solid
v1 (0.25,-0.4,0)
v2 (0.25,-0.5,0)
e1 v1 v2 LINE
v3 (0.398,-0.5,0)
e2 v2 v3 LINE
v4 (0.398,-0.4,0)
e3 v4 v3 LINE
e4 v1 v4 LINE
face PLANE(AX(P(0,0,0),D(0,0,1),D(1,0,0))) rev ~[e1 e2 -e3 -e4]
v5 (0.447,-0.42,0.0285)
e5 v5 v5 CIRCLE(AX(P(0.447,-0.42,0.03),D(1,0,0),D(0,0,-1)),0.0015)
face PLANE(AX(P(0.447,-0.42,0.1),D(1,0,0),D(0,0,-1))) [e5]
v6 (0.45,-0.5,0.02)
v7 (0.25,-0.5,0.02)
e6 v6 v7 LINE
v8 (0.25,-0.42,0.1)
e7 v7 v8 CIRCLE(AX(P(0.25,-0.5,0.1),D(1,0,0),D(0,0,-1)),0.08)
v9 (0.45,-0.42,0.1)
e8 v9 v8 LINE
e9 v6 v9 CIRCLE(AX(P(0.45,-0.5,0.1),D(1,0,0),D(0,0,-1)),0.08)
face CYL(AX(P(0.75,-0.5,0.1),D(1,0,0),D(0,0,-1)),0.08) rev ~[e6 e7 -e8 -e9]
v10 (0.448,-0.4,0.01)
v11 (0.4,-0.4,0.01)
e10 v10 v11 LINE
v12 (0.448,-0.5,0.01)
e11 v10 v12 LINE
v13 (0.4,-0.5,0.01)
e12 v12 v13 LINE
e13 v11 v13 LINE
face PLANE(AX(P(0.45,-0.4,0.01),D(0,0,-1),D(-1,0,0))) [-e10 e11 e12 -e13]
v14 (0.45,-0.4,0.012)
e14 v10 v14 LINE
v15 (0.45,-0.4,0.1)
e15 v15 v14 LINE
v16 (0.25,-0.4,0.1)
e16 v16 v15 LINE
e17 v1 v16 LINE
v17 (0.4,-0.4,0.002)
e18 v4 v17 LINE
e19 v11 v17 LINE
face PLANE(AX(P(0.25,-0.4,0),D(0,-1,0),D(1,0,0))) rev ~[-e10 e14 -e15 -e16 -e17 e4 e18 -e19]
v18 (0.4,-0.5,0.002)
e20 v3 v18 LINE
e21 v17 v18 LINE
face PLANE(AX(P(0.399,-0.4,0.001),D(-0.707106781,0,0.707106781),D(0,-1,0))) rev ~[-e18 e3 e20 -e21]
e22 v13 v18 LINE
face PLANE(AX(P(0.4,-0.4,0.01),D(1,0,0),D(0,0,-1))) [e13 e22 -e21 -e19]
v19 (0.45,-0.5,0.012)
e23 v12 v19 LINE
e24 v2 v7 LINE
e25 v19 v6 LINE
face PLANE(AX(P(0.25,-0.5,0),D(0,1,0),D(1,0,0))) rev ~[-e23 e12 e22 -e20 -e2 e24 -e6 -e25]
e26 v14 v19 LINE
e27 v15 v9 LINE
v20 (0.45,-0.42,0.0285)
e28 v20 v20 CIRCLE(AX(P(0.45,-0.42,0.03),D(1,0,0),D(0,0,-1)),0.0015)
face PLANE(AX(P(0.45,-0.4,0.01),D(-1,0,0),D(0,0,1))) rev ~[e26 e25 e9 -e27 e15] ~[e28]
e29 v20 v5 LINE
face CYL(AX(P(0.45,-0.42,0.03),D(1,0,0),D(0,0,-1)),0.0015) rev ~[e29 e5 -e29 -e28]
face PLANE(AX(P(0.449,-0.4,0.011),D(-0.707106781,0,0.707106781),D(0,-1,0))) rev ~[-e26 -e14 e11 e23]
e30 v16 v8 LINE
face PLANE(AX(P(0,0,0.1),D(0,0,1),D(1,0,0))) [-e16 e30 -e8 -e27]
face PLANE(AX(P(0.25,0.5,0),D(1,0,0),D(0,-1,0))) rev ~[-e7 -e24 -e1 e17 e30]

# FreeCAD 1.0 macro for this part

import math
import FreeCAD as App
import Part
import Sketcher
from FreeCAD import Vector


def edges_at(feature, points):
    """Names of the edges that pass closest to the given points."""
    edges = feature.Shape.Edges
    near = lambda p: min(range(len(edges)), key=lambda i: edges[i].distToShape(Part.Vertex(*p))[0])
    return sorted({f"Edge{near(p) + 1}" for p in points})

doc = App.newDocument("Part")
body = doc.addObject("PartDesign::Body", "Body")

sketch1 = body.newObject("Sketcher::SketchObject", "Sketch")
sketch1.AttachmentSupport = (doc.getObject("XY_Plane"), [""])
sketch1.MapMode = "FlatFace"
sketch1.addGeometry([
    Part.LineSegment(Vector(0.2, 0.5, 0), Vector(0.2, -0.5, 0)),
    Part.LineSegment(Vector(0.2, -0.5, 0), Vector(0.8, -0.5, 0)),
    Part.LineSegment(Vector(0.8, -0.5, 0), Vector(0.8, 0.5, 0)),
    Part.LineSegment(Vector(0.8, 0.5, 0), Vector(0.2, 0.5, 0)),
], False)
sketch1.addConstraint([
    Sketcher.Constraint("Coincident", 0, 2, 1, 1),
    Sketcher.Constraint("Coincident", 1, 2, 2, 1),
    Sketcher.Constraint("Coincident", 2, 2, 3, 1),
    Sketcher.Constraint("Coincident", 3, 2, 0, 1),
    Sketcher.Constraint("Vertical", 0),
    Sketcher.Constraint("Horizontal", 1),
    Sketcher.Constraint("Vertical", 2),
    Sketcher.Constraint("Horizontal", 3),
    Sketcher.Constraint("DistanceY", 0, 2, 0, 1, 1.0),
    Sketcher.Constraint("DistanceX", 1, 1, 1, 2, 0.5),
    Sketcher.Constraint("DistanceY", 0, 2, -1, 1, 0.5),
    Sketcher.Constraint("DistanceX", -1, 1, 0, 2, 0.25),
])
pad1 = body.newObject("PartDesign::Pad", "Pad")
pad1.Profile = sketch1
pad1.Length = 0.1

sketch2 = body.newObject("Sketcher::SketchObject", "Sketch001")
sketch2.AttachmentSupport = (doc.getObject("YZ_Plane"), [""])
sketch2.MapMode = "FlatFace"
sketch2.AttachmentOffset = App.Placement(Vector(0, 0, 0.75), App.Rotation())
sketch2.addGeometry([
    Part.LineSegment(Vector(-0.5, 0.1, 0), Vector(-0.5, 0.02, 0)),
    Part.ArcOfCircle(Part.Circle(Vector(-0.5, 0.1, 0), Vector(0, 0, 1), 0.08), math.radians(-90), math.radians(0)),
    Part.LineSegment(Vector(-0.42, 0.1, 0), Vector(-0.5, 0.1, 0)),
    Part.LineSegment(Vector(0.5, 0.1, 0), Vector(0.42, 0.1, 0)),
    Part.ArcOfCircle(Part.Circle(Vector(0.5, 0.1, 0), Vector(0, 0, 1), 0.08), math.radians(180), math.radians(270)),
    Part.LineSegment(Vector(0.5, 0.02, 0), Vector(0.5, 0.1, 0)),
], False)
sketch2.addConstraint([
    Sketcher.Constraint("Coincident", 0, 2, 1, 1),
    Sketcher.Constraint("Coincident", 1, 2, 2, 1),
    Sketcher.Constraint("Coincident", 2, 2, 0, 1),
    Sketcher.Constraint("Coincident", 3, 2, 4, 1),
    Sketcher.Constraint("Coincident", 4, 2, 5, 1),
    Sketcher.Constraint("Coincident", 5, 2, 3, 1),
    Sketcher.Constraint("Vertical", 0),
    Sketcher.Constraint("Horizontal", 2),
    Sketcher.Constraint("Horizontal", 3),
    Sketcher.Constraint("Vertical", 5),
    Sketcher.Constraint("Coincident", 2, 2, 1, 3),
    Sketcher.Constraint("Coincident", 5, 2, 4, 3),
    Sketcher.Constraint("Equal", 1, 4),
    Sketcher.Constraint("Symmetric", 1, 3, 4, 3, -2),
    Sketcher.Constraint("DistanceX", 1, 2, -1, 1, 0.42),
    Sketcher.Constraint("Radius", 1, 0.08),
    Sketcher.Constraint("DistanceY", -1, 1, 1, 3, 0.1),
])
pocket1 = body.newObject("PartDesign::Pocket", "Pocket")
pocket1.Profile = sketch2
pocket1.Length = 0.5

sketch3 = body.newObject("Sketcher::SketchObject", "Sketch002")
sketch3.AttachmentSupport = (doc.getObject("XZ_Plane"), [""])
sketch3.MapMode = "FlatFace"
sketch3.AttachmentOffset = App.Placement(Vector(0, 0, 0.4), App.Rotation())
sketch3.addGeometry([
    Part.LineSegment(Vector(0.25, 0.1, 0), Vector(0.25, 0, 0)),
    Part.LineSegment(Vector(0.25, 0, 0), Vector(0.75, 0, 0)),
    Part.LineSegment(Vector(0.75, 0, 0), Vector(0.75, 0.1, 0)),
    Part.LineSegment(Vector(0.75, 0.1, 0), Vector(0.25, 0.1, 0)),
], False)
sketch3.addConstraint([
    Sketcher.Constraint("Coincident", 0, 2, 1, 1),
    Sketcher.Constraint("Coincident", 1, 2, 2, 1),
    Sketcher.Constraint("Coincident", 2, 2, 3, 1),
    Sketcher.Constraint("Coincident", 3, 2, 0, 1),
    Sketcher.Constraint("Vertical", 0),
    Sketcher.Constraint("Horizontal", 1),
    Sketcher.Constraint("Vertical", 2),
    Sketcher.Constraint("Horizontal", 3),
    Sketcher.Constraint("PointOnObject", 0, 2, -1),
    Sketcher.Constraint("DistanceX", 1, 1, 1, 2, 0.5),
    Sketcher.Constraint("DistanceY", 0, 2, 0, 1, 0.1),
    Sketcher.Constraint("DistanceX", -1, 1, 0, 2, 0.25),
])
pocket2 = body.newObject("PartDesign::Pocket", "Pocket001")
pocket2.Profile = sketch3
pocket2.Length = 10

sketch4 = body.newObject("Sketcher::SketchObject", "Sketch003")
sketch4.AttachmentSupport = (doc.getObject("XZ_Plane"), [""])
sketch4.MapMode = "FlatFace"
sketch4.AttachmentOffset = App.Placement(Vector(0, 0, 0.4), App.Rotation())
sketch4.addGeometry([
    Part.LineSegment(Vector(0.75, 0.1, 0), Vector(0.75, 0, 0)),
    Part.LineSegment(Vector(0.75, 0, 0), Vector(0.4, 0, 0)),
    Part.LineSegment(Vector(0.4, 0, 0), Vector(0.4, 0.01, 0)),
    Part.LineSegment(Vector(0.4, 0.01, 0), Vector(0.45, 0.01, 0)),
    Part.LineSegment(Vector(0.45, 0.01, 0), Vector(0.45, 0.1, 0)),
    Part.LineSegment(Vector(0.45, 0.1, 0), Vector(0.75, 0.1, 0)),
], False)
sketch4.addConstraint([
    Sketcher.Constraint("Coincident", 0, 2, 1, 1),
    Sketcher.Constraint("Coincident", 1, 2, 2, 1),
    Sketcher.Constraint("Coincident", 2, 2, 3, 1),
    Sketcher.Constraint("Coincident", 3, 2, 4, 1),
    Sketcher.Constraint("Coincident", 4, 2, 5, 1),
    Sketcher.Constraint("Coincident", 5, 2, 0, 1),
    Sketcher.Constraint("Vertical", 0),
    Sketcher.Constraint("Horizontal", 1),
    Sketcher.Constraint("Vertical", 2),
    Sketcher.Constraint("Horizontal", 3),
    Sketcher.Constraint("Vertical", 4),
    Sketcher.Constraint("Horizontal", 5),
    Sketcher.Constraint("PointOnObject", 0, 2, -1),
    Sketcher.Constraint("DistanceX", 3, 1, 3, 2, 0.05),
    Sketcher.Constraint("DistanceY", 2, 1, 2, 2, 0.01),
    Sketcher.Constraint("DistanceX", 5, 1, 5, 2, 0.3),
    Sketcher.Constraint("DistanceY", 0, 2, 0, 1, 0.1),
    Sketcher.Constraint("DistanceX", -1, 1, 1, 2, 0.4),
])
pocket3 = body.newObject("PartDesign::Pocket", "Pocket002")
pocket3.Profile = sketch4
pocket3.Type = "ThroughAll"
pocket3.Reversed = True
doc.recompute()

chamfer = body.newObject("PartDesign::Chamfer", "Chamfer")
chamfer.Base = (pocket3, edges_at(pocket3, [(0.45, -0.45, 0.01), (0.4, -0.45, 0)]))
chamfer.Size = 0.002

sketch5 = body.newObject("Sketcher::SketchObject", "Sketch004")
sketch5.AttachmentSupport = (doc.getObject("YZ_Plane"), [""])
sketch5.MapMode = "FlatFace"
sketch5.AttachmentOffset = App.Placement(Vector(0, 0, 0.45), App.Rotation())
sketch5.addGeometry(Part.Circle(Vector(-0.42, 0.03, 0), Vector(0, 0, 1), 0.0015), False)
sketch5.addConstraint([
    Sketcher.Constraint("Diameter", 0, 0.003),
    Sketcher.Constraint("DistanceX", 0, 3, -1, 1, 0.42),
    Sketcher.Constraint("DistanceY", -1, 1, 0, 3, 0.03),
])
pocket4 = body.newObject("PartDesign::Pocket", "Pocket003")
pocket4.Profile = sketch5
pocket4.Length = 0.003

doc.recompute()
